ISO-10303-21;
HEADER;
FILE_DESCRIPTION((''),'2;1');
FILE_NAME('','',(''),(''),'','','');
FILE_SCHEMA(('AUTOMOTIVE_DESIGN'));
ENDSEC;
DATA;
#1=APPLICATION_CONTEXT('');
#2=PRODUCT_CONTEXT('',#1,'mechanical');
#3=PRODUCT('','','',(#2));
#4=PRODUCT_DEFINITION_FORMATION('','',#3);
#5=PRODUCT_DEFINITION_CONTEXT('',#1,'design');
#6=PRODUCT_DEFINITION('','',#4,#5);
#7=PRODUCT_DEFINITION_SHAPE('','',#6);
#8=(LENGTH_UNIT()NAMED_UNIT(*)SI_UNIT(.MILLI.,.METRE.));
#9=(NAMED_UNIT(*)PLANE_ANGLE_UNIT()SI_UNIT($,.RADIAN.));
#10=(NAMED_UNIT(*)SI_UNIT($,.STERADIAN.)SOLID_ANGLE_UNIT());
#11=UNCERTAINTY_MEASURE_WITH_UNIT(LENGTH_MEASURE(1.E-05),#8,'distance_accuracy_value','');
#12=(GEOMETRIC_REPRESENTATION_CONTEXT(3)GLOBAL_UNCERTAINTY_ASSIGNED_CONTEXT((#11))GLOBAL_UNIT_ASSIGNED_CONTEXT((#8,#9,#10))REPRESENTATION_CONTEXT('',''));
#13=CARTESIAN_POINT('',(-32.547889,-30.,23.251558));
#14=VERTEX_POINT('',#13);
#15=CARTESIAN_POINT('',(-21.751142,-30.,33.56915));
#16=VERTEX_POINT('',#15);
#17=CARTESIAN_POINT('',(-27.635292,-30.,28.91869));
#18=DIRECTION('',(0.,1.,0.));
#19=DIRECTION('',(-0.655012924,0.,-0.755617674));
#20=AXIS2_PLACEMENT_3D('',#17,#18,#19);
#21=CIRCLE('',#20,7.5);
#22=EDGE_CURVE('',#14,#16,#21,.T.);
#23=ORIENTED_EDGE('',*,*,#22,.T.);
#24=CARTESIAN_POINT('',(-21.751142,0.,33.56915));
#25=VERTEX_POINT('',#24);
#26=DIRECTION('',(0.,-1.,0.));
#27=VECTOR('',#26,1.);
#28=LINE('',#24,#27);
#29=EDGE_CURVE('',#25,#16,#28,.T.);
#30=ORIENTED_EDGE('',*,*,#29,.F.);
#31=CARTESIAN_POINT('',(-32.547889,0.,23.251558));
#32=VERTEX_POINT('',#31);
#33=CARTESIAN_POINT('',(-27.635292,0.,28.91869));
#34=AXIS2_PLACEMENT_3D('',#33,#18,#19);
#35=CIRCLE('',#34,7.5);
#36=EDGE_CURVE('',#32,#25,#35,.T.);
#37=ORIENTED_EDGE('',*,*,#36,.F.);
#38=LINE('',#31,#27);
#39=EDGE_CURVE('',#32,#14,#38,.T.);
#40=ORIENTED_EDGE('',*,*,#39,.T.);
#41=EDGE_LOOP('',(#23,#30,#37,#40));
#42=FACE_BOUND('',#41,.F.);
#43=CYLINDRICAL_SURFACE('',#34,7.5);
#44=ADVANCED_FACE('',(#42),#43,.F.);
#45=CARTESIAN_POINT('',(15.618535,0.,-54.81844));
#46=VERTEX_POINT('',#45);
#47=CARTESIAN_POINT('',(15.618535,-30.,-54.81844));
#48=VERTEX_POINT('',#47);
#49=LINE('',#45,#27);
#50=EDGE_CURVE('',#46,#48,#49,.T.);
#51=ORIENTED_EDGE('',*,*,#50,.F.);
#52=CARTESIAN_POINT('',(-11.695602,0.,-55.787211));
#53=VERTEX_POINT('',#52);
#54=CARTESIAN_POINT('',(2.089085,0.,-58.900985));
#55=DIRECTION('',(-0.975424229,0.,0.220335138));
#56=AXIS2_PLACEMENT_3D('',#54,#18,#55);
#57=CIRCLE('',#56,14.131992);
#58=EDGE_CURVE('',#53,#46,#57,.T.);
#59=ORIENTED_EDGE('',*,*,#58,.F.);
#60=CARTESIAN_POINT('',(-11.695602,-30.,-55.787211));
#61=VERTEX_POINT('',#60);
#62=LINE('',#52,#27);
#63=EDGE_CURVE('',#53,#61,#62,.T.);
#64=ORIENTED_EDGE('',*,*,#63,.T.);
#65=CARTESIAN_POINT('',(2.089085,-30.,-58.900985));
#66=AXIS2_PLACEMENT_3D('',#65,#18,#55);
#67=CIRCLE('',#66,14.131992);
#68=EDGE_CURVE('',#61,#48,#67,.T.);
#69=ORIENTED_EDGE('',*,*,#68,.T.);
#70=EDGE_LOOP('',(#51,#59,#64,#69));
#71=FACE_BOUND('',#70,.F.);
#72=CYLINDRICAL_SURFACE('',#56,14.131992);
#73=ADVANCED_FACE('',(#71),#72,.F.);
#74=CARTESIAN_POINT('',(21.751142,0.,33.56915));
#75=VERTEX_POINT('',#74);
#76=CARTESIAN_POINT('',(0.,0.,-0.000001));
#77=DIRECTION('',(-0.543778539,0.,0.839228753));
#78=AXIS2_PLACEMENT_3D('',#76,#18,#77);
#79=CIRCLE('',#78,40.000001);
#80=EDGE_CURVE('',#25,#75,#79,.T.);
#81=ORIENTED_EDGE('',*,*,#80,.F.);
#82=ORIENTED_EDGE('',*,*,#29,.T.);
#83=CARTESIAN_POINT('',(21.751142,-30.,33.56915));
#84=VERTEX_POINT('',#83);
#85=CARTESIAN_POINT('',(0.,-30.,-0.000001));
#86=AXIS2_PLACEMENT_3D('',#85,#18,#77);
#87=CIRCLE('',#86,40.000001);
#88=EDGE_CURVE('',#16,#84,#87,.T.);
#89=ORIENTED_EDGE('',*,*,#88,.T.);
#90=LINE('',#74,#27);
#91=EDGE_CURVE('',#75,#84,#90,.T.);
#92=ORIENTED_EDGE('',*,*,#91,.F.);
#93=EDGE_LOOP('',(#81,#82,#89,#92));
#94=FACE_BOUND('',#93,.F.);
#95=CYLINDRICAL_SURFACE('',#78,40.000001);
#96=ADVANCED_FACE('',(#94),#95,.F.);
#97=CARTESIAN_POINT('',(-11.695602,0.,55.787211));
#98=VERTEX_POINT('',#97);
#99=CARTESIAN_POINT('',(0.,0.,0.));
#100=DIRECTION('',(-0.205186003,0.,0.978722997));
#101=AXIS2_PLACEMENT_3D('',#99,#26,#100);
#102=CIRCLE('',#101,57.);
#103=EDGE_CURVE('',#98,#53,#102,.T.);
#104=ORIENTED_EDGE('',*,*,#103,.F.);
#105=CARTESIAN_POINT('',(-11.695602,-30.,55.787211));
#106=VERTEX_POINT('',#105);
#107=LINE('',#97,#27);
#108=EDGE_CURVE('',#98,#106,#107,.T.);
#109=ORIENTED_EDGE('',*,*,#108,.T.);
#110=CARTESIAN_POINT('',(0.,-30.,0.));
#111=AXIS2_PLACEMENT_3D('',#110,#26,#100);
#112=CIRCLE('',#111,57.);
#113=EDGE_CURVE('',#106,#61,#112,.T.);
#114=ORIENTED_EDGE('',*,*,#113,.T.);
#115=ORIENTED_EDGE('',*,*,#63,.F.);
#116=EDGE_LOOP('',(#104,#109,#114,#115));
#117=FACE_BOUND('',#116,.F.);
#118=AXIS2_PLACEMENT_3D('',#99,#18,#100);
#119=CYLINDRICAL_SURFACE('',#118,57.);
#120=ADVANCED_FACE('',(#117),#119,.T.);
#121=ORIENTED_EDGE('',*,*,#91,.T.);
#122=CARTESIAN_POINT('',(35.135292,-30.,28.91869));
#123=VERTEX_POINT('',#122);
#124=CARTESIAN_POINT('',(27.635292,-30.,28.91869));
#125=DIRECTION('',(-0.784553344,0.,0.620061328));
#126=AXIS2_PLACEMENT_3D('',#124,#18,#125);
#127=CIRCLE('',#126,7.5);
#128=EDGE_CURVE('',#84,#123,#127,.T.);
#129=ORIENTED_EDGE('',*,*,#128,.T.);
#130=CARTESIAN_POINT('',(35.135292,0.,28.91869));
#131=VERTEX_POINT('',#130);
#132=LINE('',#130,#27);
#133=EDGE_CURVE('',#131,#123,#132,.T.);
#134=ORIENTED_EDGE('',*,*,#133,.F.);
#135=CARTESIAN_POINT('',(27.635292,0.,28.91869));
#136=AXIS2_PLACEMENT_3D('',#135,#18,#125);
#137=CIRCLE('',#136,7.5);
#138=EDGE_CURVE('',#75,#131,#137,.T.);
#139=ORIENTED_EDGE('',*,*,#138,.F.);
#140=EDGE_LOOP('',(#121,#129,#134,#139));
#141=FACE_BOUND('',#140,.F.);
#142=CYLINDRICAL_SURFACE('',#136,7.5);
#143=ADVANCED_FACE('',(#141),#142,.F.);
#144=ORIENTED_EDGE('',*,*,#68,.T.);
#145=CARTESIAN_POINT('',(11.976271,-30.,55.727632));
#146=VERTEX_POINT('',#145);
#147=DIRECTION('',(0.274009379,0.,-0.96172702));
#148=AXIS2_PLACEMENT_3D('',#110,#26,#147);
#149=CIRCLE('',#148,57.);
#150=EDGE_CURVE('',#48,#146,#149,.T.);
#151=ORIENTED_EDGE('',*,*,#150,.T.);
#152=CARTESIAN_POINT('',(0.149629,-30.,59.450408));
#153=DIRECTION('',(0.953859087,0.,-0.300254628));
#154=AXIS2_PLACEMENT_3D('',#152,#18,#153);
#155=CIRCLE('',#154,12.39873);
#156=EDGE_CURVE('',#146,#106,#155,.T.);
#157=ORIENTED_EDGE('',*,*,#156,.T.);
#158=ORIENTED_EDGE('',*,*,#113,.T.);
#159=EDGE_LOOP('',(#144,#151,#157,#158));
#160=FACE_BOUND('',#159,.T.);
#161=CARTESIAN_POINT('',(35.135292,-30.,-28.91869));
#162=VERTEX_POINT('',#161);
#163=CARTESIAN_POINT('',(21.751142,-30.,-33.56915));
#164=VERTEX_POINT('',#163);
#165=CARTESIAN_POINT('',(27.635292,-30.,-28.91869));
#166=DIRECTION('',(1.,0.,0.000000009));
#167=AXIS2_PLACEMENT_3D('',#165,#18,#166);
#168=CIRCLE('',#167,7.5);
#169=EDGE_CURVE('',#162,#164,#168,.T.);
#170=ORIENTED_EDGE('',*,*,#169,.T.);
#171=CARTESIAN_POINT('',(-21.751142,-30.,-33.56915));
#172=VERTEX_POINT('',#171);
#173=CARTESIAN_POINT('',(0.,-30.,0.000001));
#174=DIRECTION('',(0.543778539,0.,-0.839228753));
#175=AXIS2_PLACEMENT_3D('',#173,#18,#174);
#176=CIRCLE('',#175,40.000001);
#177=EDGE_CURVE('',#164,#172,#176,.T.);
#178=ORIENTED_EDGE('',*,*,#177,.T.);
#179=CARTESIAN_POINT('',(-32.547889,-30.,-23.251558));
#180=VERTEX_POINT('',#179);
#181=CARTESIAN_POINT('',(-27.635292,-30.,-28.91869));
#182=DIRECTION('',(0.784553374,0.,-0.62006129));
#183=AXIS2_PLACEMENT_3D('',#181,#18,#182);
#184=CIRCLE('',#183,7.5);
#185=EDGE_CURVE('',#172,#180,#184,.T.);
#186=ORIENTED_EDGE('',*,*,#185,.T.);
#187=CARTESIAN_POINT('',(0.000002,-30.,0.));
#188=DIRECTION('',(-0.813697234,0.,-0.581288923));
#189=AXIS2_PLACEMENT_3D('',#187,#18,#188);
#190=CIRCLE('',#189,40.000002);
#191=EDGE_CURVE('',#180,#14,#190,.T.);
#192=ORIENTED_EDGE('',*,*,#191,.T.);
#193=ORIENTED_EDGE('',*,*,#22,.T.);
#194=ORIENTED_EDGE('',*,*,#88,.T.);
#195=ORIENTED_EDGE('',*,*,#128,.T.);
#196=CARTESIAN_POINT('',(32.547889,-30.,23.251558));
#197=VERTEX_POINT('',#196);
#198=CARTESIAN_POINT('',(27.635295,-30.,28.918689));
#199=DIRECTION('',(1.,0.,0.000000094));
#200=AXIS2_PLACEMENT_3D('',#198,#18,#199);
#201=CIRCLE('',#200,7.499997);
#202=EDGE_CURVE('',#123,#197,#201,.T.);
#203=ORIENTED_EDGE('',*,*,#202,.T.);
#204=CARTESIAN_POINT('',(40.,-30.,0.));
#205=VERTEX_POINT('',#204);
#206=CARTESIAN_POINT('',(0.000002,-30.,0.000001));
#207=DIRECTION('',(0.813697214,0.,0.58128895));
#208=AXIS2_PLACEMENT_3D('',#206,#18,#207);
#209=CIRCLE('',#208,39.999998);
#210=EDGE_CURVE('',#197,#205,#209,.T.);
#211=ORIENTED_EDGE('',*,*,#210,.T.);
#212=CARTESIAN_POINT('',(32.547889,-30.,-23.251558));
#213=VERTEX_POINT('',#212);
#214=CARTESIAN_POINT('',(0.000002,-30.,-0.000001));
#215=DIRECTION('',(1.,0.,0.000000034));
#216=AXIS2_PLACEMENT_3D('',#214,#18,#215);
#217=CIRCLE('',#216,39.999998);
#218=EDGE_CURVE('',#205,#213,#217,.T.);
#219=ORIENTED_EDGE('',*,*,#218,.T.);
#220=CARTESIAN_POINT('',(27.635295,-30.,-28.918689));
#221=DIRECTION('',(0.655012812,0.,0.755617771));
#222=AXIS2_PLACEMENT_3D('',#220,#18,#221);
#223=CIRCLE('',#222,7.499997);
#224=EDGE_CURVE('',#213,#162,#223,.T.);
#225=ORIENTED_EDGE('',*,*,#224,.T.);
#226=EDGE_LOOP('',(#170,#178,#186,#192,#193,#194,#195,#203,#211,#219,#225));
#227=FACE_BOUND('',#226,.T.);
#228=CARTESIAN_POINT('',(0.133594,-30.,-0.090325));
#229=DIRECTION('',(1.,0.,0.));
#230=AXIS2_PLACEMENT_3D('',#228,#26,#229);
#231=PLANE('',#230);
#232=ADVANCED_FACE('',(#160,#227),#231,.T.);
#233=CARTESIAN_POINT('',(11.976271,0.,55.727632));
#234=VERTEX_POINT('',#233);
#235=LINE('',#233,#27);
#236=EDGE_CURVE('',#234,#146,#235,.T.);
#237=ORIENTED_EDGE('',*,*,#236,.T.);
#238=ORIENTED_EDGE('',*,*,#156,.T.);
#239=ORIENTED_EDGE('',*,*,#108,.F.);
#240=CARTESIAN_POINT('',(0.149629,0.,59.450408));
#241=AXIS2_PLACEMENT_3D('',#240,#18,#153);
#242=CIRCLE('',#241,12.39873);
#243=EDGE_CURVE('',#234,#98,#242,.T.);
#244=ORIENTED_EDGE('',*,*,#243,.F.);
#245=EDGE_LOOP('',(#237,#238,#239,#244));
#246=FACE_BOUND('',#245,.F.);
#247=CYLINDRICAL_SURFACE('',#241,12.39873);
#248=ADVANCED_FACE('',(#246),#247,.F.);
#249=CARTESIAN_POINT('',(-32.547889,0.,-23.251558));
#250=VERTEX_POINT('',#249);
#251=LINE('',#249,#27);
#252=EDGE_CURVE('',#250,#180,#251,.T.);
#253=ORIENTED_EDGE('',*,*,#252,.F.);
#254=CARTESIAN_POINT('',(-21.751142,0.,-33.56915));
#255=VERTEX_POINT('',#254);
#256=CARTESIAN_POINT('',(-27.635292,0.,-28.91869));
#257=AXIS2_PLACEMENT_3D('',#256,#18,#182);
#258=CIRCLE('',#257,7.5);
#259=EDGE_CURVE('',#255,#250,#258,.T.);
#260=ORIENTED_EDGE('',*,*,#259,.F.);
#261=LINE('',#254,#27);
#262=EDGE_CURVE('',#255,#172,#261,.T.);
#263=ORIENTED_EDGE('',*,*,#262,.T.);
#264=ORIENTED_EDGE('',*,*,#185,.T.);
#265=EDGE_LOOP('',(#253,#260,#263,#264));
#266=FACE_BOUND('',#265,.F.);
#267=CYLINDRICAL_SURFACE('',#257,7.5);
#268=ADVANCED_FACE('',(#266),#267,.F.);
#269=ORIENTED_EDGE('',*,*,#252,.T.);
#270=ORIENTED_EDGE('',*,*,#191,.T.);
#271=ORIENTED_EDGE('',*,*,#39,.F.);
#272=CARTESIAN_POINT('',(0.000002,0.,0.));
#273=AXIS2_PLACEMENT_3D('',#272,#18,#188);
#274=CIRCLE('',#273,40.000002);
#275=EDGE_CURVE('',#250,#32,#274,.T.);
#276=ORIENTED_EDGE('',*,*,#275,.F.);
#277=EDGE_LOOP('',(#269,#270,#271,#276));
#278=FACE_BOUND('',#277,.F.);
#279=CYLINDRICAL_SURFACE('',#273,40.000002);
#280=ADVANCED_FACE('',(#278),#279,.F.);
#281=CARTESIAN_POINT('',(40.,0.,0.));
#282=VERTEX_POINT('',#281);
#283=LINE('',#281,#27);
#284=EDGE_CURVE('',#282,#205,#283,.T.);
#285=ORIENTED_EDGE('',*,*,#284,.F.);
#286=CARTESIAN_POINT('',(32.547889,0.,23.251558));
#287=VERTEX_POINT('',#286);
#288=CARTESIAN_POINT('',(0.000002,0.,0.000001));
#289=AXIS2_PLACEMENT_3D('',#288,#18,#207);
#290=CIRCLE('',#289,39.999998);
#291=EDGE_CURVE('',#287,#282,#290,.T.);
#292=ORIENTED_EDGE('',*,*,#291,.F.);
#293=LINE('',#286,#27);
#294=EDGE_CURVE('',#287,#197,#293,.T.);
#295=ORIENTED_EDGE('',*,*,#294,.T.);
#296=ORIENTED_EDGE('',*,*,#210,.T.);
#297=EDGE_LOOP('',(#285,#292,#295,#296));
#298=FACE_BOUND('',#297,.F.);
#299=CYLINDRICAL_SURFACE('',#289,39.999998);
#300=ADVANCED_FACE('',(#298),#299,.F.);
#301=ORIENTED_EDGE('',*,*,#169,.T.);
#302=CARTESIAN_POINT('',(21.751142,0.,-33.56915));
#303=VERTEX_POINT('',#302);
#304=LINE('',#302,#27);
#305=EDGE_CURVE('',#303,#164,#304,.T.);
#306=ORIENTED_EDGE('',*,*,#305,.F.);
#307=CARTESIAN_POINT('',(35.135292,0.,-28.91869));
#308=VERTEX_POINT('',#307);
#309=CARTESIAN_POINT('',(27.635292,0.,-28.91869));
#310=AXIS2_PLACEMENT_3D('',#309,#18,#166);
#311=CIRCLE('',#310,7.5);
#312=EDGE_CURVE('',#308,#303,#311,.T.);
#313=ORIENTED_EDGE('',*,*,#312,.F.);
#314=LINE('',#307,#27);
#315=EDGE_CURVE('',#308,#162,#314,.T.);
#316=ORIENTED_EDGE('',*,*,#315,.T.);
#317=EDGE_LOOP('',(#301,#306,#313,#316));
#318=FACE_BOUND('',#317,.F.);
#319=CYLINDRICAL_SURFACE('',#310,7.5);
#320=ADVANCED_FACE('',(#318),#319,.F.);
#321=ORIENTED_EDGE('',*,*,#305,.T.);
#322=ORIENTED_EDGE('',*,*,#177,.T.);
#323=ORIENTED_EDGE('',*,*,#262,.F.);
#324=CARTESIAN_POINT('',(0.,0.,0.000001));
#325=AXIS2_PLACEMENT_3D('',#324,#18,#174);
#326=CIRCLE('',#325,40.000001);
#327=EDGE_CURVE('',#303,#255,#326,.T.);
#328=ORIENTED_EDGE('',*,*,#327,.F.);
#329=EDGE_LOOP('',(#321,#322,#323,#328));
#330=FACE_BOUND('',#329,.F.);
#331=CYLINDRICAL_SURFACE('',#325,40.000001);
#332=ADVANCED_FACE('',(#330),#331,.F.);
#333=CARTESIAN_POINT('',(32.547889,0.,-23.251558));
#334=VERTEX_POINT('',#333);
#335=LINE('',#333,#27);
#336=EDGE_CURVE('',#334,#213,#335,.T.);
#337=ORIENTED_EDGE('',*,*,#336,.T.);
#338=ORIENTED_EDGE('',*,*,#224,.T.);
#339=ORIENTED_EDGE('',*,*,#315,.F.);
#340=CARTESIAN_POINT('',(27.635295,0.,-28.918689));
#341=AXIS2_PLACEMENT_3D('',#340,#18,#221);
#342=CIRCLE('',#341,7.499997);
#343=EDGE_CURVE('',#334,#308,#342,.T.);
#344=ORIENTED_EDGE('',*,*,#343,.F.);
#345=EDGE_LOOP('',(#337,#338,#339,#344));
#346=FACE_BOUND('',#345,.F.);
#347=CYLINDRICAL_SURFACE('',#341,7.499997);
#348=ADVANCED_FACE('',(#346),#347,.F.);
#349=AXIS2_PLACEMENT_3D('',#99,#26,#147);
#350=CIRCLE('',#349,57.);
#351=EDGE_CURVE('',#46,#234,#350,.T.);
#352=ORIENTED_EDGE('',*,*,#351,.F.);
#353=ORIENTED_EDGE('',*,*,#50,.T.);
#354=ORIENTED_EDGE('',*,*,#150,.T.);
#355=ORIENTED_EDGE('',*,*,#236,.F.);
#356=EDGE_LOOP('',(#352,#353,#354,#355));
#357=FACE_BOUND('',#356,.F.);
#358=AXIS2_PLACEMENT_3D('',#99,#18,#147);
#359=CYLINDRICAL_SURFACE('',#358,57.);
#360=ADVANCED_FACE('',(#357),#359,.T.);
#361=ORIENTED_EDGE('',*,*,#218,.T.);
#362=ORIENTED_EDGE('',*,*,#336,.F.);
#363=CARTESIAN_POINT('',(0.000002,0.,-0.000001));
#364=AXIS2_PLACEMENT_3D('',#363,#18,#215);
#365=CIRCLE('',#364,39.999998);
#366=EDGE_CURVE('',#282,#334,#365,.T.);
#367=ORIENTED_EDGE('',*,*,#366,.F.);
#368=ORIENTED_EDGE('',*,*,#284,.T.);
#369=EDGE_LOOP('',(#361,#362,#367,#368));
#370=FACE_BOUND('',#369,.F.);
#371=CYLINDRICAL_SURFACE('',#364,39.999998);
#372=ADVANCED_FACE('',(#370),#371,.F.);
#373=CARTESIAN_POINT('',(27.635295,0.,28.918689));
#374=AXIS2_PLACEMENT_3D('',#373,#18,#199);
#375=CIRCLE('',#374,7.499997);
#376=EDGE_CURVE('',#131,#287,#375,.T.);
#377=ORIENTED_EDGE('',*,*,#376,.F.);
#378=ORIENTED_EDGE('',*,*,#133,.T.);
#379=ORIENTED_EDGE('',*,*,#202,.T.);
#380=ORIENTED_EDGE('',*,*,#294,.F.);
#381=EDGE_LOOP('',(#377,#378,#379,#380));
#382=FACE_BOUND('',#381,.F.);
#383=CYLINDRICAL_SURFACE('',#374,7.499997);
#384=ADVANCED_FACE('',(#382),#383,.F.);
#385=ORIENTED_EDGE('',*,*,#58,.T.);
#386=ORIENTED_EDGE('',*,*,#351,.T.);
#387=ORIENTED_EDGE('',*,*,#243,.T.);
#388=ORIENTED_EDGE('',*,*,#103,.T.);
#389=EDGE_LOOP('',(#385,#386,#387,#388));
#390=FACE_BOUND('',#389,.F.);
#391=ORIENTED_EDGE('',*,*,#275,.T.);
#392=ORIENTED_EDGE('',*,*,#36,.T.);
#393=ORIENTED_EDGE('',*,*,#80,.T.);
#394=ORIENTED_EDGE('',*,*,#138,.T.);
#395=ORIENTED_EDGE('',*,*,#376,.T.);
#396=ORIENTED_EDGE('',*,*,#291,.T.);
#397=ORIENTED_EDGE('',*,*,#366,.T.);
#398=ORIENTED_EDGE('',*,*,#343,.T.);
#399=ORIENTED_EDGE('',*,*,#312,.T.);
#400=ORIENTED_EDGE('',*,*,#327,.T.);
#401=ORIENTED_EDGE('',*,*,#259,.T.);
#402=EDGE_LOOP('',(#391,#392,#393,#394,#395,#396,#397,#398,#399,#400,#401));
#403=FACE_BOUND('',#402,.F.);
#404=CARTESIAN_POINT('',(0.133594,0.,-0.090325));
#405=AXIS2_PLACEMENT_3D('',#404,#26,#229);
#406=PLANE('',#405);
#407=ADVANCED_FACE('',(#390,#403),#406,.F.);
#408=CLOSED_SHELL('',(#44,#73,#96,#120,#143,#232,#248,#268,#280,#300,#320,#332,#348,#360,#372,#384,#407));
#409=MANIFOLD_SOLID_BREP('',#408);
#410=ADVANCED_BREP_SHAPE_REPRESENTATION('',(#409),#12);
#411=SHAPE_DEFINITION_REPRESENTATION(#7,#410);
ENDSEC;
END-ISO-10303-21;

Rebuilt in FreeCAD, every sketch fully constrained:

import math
import FreeCAD as App
import Part
import Sketcher
from FreeCAD import Vector

doc = App.newDocument("Part")
body = doc.addObject("PartDesign::Body", "Body")

# Sketch on XZ plane
sketch1 = body.newObject("Sketcher::SketchObject", "Sketch")
sketch1.AttachmentSupport = (doc.getObject("XZ_Plane"), [""])
sketch1.MapMode = "FlatFace"
sketch1.addGeometry([
    Part.ArcOfCircle(Part.Circle(Vector(0, 59, 0), Vector(0, 0, 1), 12), math.radians(-163), math.radians(-17)),  # 0
    Part.ArcOfCircle(Part.Circle(Vector(0, 0, 0), Vector(0, 0, 1), 57), math.radians(102), math.radians(258)),  # 1
    Part.ArcOfCircle(Part.Circle(Vector(2, -59, 0), Vector(0, 0, 1), 14), math.radians(17), math.radians(167)),  # 2
    Part.ArcOfCircle(Part.Circle(Vector(0, 0, 0), Vector(0, 0, 1), 57), math.radians(-74), math.radians(78)),  # 3
    Part.ArcOfCircle(Part.Circle(Vector(28, 29, 0), Vector(0, 0, 1), 7), math.radians(-49), math.radians(0)),  # 4
    Part.ArcOfCircle(Part.Circle(Vector(0, 0, 0), Vector(0, 0, 1), 40), math.radians(0), math.radians(36)),  # 5
    Part.ArcOfCircle(Part.Circle(Vector(0, 0, 0), Vector(0, 0, 1), 40), math.radians(-36), math.radians(0)),  # 6
    Part.ArcOfCircle(Part.Circle(Vector(28, -29, 0), Vector(0, 0, 1), 7), math.radians(0), math.radians(49)),  # 7
    Part.ArcOfCircle(Part.Circle(Vector(28, -29, 0), Vector(0, 0, 1), 7), math.radians(-142), math.radians(0)),  # 8
    Part.ArcOfCircle(Part.Circle(Vector(0, 0, 0), Vector(0, 0, 1), 40), math.radians(-123), math.radians(-57)),  # 9
    Part.ArcOfCircle(Part.Circle(Vector(-28, -29, 0), Vector(0, 0, 1), 7), math.radians(131), math.radians(322)),  # 10
    Part.ArcOfCircle(Part.Circle(Vector(0, 0, 0), Vector(0, 0, 1), 40), math.radians(144), math.radians(216)),  # 11
    Part.ArcOfCircle(Part.Circle(Vector(-28, 29, 0), Vector(0, 0, 1), 7), math.radians(38), math.radians(229)),  # 12
    Part.ArcOfCircle(Part.Circle(Vector(0, 0, 0), Vector(0, 0, 1), 40), math.radians(57), math.radians(123)),  # 13
    Part.ArcOfCircle(Part.Circle(Vector(28, 29, 0), Vector(0, 0, 1), 7), math.radians(0), math.radians(142)),  # 14
], False)
sketch1.addConstraint([
    Sketcher.Constraint("Coincident", 0, 1, 1, 1),
    Sketcher.Constraint("Coincident", 1, 2, 2, 2),
    Sketcher.Constraint("Coincident", 2, 1, 3, 1),
    Sketcher.Constraint("Coincident", 3, 2, 0, 2),
    Sketcher.Constraint("Coincident", 4, 1, 5, 2),
    Sketcher.Constraint("Tangent", 5, 1, 6, 2),
    Sketcher.Constraint("Coincident", 6, 1, 7, 2),
    Sketcher.Constraint("Tangent", 7, 1, 8, 2),
    Sketcher.Constraint("Coincident", 8, 1, 9, 2),
    Sketcher.Constraint("Coincident", 9, 1, 10, 2),
    Sketcher.Constraint("Coincident", 10, 1, 11, 2),
    Sketcher.Constraint("Coincident", 11, 1, 12, 2),
    Sketcher.Constraint("Coincident", 12, 1, 13, 2),
    Sketcher.Constraint("Coincident", 13, 1, 14, 2),
    Sketcher.Constraint("Tangent", 14, 1, 4, 2),
    Sketcher.Constraint("Coincident", 1, 3, -1, 1),
    Sketcher.Constraint("Coincident", 3, 3, -1, 1),
    Sketcher.Constraint("Coincident", 5, 3, -1, 1),
    Sketcher.Constraint("Coincident", 9, 3, -1, 1),
    Sketcher.Constraint("Coincident", 11, 3, -1, 1),
    Sketcher.Constraint("Coincident", 13, 3, -1, 1),
    Sketcher.Constraint("Equal", 1, 3),
    Sketcher.Constraint("Equal", 5, 6),
    Sketcher.Constraint("Equal", 4, 7),
    Sketcher.Constraint("Equal", 8, 10),
    Sketcher.Constraint("Equal", 9, 11),
    Sketcher.Constraint("Equal", 10, 12),
    Sketcher.Constraint("Equal", 11, 13),
    Sketcher.Constraint("Equal", 12, 14),
    Sketcher.Constraint("Symmetric", 4, 3, 10, 3, -1, 1),
    Sketcher.Constraint("Symmetric", 7, 3, 12, 3, -1, 1),
    Sketcher.Constraint("Symmetric", 4, 1, 10, 1, -1, 1),
    Sketcher.Constraint("Symmetric", 7, 3, 10, 3, -2),
    Sketcher.Constraint("PointOnObject", 5, 1, -1),
    Sketcher.Constraint("Horizontal", 10, 3, 7, 1),
    Sketcher.Constraint("Horizontal", 12, 3, 14, 1),
    Sketcher.Constraint("Vertical", 0, 1, 1, 2),
    Sketcher.Constraint("Radius", 1, 57.0),
    Sketcher.Constraint("Radius", 9, 40.000001),
    Sketcher.Constraint("Radius", 8, 7.5),
    Sketcher.Constraint("Radius", 0, 12.39873),
    Sketcher.Constraint("Radius", 2, 14.131992),
    Sketcher.Constraint("DistanceX", 0, 1, -1, 1, 11.695602),
    Sketcher.Constraint("DistanceX", -1, 1, 0, 3, 0.149629),
    Sketcher.Constraint("DistanceY", -1, 1, 4, 3, 28.918689),
    Sketcher.Constraint("DistanceY", 2, 1, -1, 1, 54.81844),
    Sketcher.Constraint("DistanceX", -1, 1, 4, 1, 32.547889),
])
pad1 = body.newObject("PartDesign::Pad", "Pad")
pad1.Profile = sketch1
pad1.Length = 30

doc.recompute()
